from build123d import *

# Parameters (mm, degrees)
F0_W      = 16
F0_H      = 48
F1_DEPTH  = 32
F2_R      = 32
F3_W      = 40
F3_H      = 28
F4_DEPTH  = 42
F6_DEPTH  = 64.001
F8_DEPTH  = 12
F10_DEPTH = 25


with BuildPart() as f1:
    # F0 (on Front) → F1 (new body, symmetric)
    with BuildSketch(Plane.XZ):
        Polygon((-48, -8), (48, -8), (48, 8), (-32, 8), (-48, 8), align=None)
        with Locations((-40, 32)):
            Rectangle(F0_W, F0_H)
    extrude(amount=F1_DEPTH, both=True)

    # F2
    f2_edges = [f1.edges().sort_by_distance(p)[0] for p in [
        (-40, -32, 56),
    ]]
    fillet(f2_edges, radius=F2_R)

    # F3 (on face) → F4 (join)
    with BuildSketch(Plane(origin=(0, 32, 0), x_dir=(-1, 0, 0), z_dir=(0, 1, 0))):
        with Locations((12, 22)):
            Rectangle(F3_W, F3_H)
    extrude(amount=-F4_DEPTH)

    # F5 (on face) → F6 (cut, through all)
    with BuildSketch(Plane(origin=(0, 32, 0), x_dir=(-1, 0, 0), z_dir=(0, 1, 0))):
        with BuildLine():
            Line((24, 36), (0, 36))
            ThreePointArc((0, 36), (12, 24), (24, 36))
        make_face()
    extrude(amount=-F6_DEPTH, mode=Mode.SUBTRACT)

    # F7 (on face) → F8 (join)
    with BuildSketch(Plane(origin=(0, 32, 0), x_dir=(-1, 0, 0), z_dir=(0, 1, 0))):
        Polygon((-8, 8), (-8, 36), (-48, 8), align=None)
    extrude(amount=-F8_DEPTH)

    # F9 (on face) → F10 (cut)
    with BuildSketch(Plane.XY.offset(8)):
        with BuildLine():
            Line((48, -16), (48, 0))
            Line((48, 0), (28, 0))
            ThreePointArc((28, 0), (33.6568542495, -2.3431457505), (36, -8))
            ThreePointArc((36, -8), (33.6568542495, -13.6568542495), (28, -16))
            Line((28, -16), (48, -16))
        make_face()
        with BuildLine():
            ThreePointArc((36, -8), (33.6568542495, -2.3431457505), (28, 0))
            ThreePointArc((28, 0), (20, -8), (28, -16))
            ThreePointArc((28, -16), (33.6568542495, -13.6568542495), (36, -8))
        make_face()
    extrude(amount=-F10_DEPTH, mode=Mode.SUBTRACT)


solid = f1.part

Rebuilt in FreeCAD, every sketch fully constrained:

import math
import FreeCAD as App
import Part
import Sketcher

V = App.Vector


def edges_at(feature, points):
    """Names of the edges that pass closest to the given points."""
    edges = feature.Shape.Edges
    near = lambda p: min(range(len(edges)), key=lambda i: edges[i].distToShape(Part.Vertex(*p))[0])
    return sorted({f"Edge{near(p) + 1}" for p in points})

doc = App.newDocument("Part")
body = doc.addObject("PartDesign::Body", "Body")

# Sketch on XZ plane
sketch1 = body.newObject("Sketcher::SketchObject", "Sketch")
sketch1.AttachmentSupport = (doc.getObject("XZ_Plane"), [""])
sketch1.MapMode = "FlatFace"
sketch1.addGeometry([
    Part.LineSegment(V(-48, -8, 0), V(48, -8, 0)),  # 0
    Part.LineSegment(V(48, -8, 0), V(48, 8, 0)),  # 1
    Part.LineSegment(V(48, 8, 0), V(-32, 8, 0)),  # 2
    Part.LineSegment(V(-32, 8, 0), V(-32, 56, 0)),  # 3
    Part.LineSegment(V(-32, 56, 0), V(-48, 56, 0)),  # 4
    Part.LineSegment(V(-48, 56, 0), V(-48, -8, 0)),  # 5
], False)
sketch1.addConstraint([
    Sketcher.Constraint("Coincident", 0, 2, 1, 1),
    Sketcher.Constraint("Coincident", 1, 2, 2, 1),
    Sketcher.Constraint("Coincident", 2, 2, 3, 1),
    Sketcher.Constraint("Coincident", 3, 2, 4, 1),
    Sketcher.Constraint("Coincident", 4, 2, 5, 1),
    Sketcher.Constraint("Coincident", 5, 2, 0, 1),
    Sketcher.Constraint("Horizontal", 0),
    Sketcher.Constraint("Vertical", 1),
    Sketcher.Constraint("Horizontal", 2),
    Sketcher.Constraint("Vertical", 3),
    Sketcher.Constraint("Horizontal", 4),
    Sketcher.Constraint("Vertical", 5),
    Sketcher.Constraint("Symmetric", 1, 2, 5, 2, -1, 1),
    Sketcher.Constraint("Equal", 4, 1),
    Sketcher.Constraint("DistanceX", 0, 1, 0, 2, 96.0),
    Sketcher.Constraint("DistanceX", 2, 2, 2, 1, 80.0),
    Sketcher.Constraint("DistanceY", 3, 1, 3, 2, 48.0),
])
pad1 = body.newObject("PartDesign::Pad", "Pad")
pad1.Profile = sketch1
pad1.Length = 64
pad1.Midplane = True
doc.recompute()

fillet = body.newObject("PartDesign::Fillet", "Fillet")
fillet.Base = (pad1, edges_at(pad1, [(-40, -32, 56)]))
fillet.Radius = 32

# Sketch on XZ plane
sketch2 = body.newObject("Sketcher::SketchObject", "Sketch001")
sketch2.AttachmentSupport = (doc.getObject("XZ_Plane"), [""])
sketch2.MapMode = "FlatFace"
sketch2.AttachmentOffset = App.Placement(V(0, 0, -32), App.Rotation())
sketch2.addGeometry([
    Part.LineSegment(V(8, 36, 0), V(8, 8, 0)),
    Part.LineSegment(V(8, 8, 0), V(-32, 8, 0)),
    Part.LineSegment(V(-32, 8, 0), V(-32, 36, 0)),
    Part.LineSegment(V(-32, 36, 0), V(8, 36, 0)),
], False)
sketch2.addConstraint([
    Sketcher.Constraint("Coincident", 0, 2, 1, 1),
    Sketcher.Constraint("Coincident", 1, 2, 2, 1),
    Sketcher.Constraint("Coincident", 2, 2, 3, 1),
    Sketcher.Constraint("Coincident", 3, 2, 0, 1),
    Sketcher.Constraint("Vertical", 0),
    Sketcher.Constraint("Horizontal", 1),
    Sketcher.Constraint("Vertical", 2),
    Sketcher.Constraint("Horizontal", 3),
    Sketcher.Constraint("DistanceX", 1, 2, 1, 1, 40.0),
    Sketcher.Constraint("DistanceY", 0, 2, 0, 1, 28.0),
    Sketcher.Constraint("DistanceX", -1, 1, 0, 2, 8.0),
    Sketcher.Constraint("DistanceY", -1, 1, 0, 2, 8.0),
])
pad2 = body.newObject("PartDesign::Pad", "Pad001")
pad2.Profile = sketch2
pad2.Length = 42

# Sketch on XZ plane
sketch3 = body.newObject("Sketcher::SketchObject", "Sketch002")
sketch3.AttachmentSupport = (doc.getObject("XZ_Plane"), [""])
sketch3.MapMode = "FlatFace"
sketch3.AttachmentOffset = App.Placement(V(0, 0, -32), App.Rotation())
sketch3.addGeometry([
    Part.LineSegment(V(-24, 36, 0), V(0, 36, 0)),
    Part.ArcOfCircle(Part.Circle(V(-12, 36, 0), V(0, 0, 1), 12), math.radians(180), math.radians(360)),
], False)
sketch3.addConstraint([
    Sketcher.Constraint("Coincident", 0, 1, 1, 1),
    Sketcher.Constraint("Coincident", 1, 2, 0, 2),
    Sketcher.Constraint("Horizontal", 0),
    Sketcher.Constraint("PointOnObject", 1, 2, -2),
    Sketcher.Constraint("Horizontal", 1, 3, 0, 1),
    Sketcher.Constraint("Radius", 1, 12.0),
    Sketcher.Constraint("DistanceY", -1, 1, 1, 3, 36.0),
])
pocket1 = body.newObject("PartDesign::Pocket", "Pocket")
pocket1.Profile = sketch3
pocket1.Type = "ThroughAll"
pocket1.Reversed = True

# Sketch on XZ plane
sketch4 = body.newObject("Sketcher::SketchObject", "Sketch003")
sketch4.AttachmentSupport = (doc.getObject("XZ_Plane"), [""])
sketch4.MapMode = "FlatFace"
sketch4.AttachmentOffset = App.Placement(V(0, 0, -32), App.Rotation())
sketch4.addGeometry([
    Part.LineSegment(V(8, 8, 0), V(8, 36, 0)),
    Part.LineSegment(V(8, 36, 0), V(48, 8, 0)),
    Part.LineSegment(V(48, 8, 0), V(8, 8, 0)),
], False)
sketch4.addConstraint([
    Sketcher.Constraint("Coincident", 0, 2, 1, 1),
    Sketcher.Constraint("Coincident", 1, 2, 2, 1),
    Sketcher.Constraint("Coincident", 2, 2, 0, 1),
    Sketcher.Constraint("Vertical", 0),
    Sketcher.Constraint("Horizontal", 2),
    Sketcher.Constraint("DistanceX", 2, 2, 2, 1, 40.0),
    Sketcher.Constraint("DistanceY", 0, 1, 0, 2, 28.0),
    Sketcher.Constraint("DistanceX", -1, 1, 0, 2, 8.0),
    Sketcher.Constraint("DistanceY", -1, 1, 0, 2, 36.0),
])
pad3 = body.newObject("PartDesign::Pad", "Pad002")
pad3.Profile = sketch4
pad3.Length = 12

# Sketch on XY plane
sketch5 = body.newObject("Sketcher::SketchObject", "Sketch004")
sketch5.AttachmentSupport = (doc.getObject("XY_Plane"), [""])
sketch5.MapMode = "FlatFace"
sketch5.AttachmentOffset = App.Placement(V(0, 0, 8), App.Rotation())
sketch5.addGeometry([
    Part.LineSegment(V(48, -16, 0), V(48, 0, 0)),
    Part.LineSegment(V(48, 0, 0), V(28, 0, 0)),
    Part.ArcOfCircle(Part.Circle(V(28, -8, 0), V(0, 0, 1), 8), math.radians(90), math.radians(270)),
    Part.LineSegment(V(28, -16, 0), V(48, -16, 0)),
], False)
sketch5.addConstraint([
    Sketcher.Constraint("Coincident", 0, 2, 1, 1),
    Sketcher.Constraint("Tangent", 1, 2, 2, 1),
    Sketcher.Constraint("Tangent", 2, 2, 3, 1),
    Sketcher.Constraint("Coincident", 3, 2, 0, 1),
    Sketcher.Constraint("Vertical", 0),
    Sketcher.Constraint("Horizontal", 1),
    Sketcher.Constraint("Horizontal", 3),
    Sketcher.Constraint("PointOnObject", 0, 2, -1),
    Sketcher.Constraint("Radius", 2, 8.0),
    Sketcher.Constraint("DistanceX", 1, 2, 1, 1, 20.0),
    Sketcher.Constraint("DistanceX", -1, 1, 2, 3, 28.0),
])
pocket2 = body.newObject("PartDesign::Pocket", "Pocket001")
pocket2.Profile = sketch5
pocket2.Length = 25

doc.recompute()
